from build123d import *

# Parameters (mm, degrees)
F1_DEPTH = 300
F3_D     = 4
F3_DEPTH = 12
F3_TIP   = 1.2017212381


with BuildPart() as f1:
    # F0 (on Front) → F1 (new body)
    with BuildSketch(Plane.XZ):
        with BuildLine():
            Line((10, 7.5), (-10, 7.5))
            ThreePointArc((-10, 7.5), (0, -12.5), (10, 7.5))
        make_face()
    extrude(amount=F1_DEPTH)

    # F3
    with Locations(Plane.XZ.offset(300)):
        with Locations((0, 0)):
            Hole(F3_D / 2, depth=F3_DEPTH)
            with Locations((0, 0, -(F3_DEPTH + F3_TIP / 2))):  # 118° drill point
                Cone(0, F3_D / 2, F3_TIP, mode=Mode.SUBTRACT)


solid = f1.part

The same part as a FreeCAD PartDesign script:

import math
import FreeCAD as App
import Part
import Sketcher

doc = App.newDocument("Part")
body = doc.addObject("PartDesign::Body", "Body")

# Sketch on XZ plane
sketch1 = body.newObject("Sketcher::SketchObject", "Sketch")
sketch1.AttachmentSupport = (doc.getObject("XZ_Plane"), [""])
sketch1.MapMode = "FlatFace"
sketch1.addGeometry(Part.LineSegment(App.Vector(10, 8, 0), App.Vector(-10, 8, 0)), False)
sketch1.addGeometry(Part.ArcOfCircle(Part.Circle(App.Vector(0, 0, 0), App.Vector(0, 0, 1), 12), math.radians(143), math.radians(397)), False)
sketch1.addConstraint(Sketcher.Constraint("Coincident", 0, 1, 1, 2))
sketch1.addConstraint(Sketcher.Constraint("Coincident", 1, 1, 0, 2))
sketch1.addConstraint(Sketcher.Constraint("Horizontal", 0))
sketch1.addConstraint(Sketcher.Constraint("Coincident", 1, 3, -1, 1))
sketch1.addConstraint(Sketcher.Constraint("Radius", 1, 12.5))
sketch1.addConstraint(Sketcher.Constraint("DistanceX", 0, 2, 0, 1, 20.0))
pad1 = body.newObject("PartDesign::Pad", "Pad")
pad1.Profile = sketch1
pad1.Length = 300

# Sketch on XZ plane
sketch2 = body.newObject("Sketcher::SketchObject", "Sketch001")
sketch2.AttachmentSupport = (doc.getObject("XZ_Plane"), [""])
sketch2.MapMode = "FlatFace"
sketch2.AttachmentOffset = App.Placement(App.Vector(0, 0, 300), App.Rotation())
sketch2.addGeometry(Part.Circle(App.Vector(0, 0, 0), App.Vector(0, 0, 1), 2), False)
sketch2.addConstraint(Sketcher.Constraint("Coincident", 0, 3, -1, 1))
sketch2.addConstraint(Sketcher.Constraint("Diameter", 0, 4.0))
doc.recompute()
hole = body.newObject("PartDesign::Hole", "Hole")
hole.Profile = sketch2
hole.ThreadType = "None"
hole.Diameter = 4
hole.DepthType = "Dimension"
hole.Depth = 12
hole.DrillPoint = "Angled"
hole.DrillPointAngle = 118

doc.recompute()
